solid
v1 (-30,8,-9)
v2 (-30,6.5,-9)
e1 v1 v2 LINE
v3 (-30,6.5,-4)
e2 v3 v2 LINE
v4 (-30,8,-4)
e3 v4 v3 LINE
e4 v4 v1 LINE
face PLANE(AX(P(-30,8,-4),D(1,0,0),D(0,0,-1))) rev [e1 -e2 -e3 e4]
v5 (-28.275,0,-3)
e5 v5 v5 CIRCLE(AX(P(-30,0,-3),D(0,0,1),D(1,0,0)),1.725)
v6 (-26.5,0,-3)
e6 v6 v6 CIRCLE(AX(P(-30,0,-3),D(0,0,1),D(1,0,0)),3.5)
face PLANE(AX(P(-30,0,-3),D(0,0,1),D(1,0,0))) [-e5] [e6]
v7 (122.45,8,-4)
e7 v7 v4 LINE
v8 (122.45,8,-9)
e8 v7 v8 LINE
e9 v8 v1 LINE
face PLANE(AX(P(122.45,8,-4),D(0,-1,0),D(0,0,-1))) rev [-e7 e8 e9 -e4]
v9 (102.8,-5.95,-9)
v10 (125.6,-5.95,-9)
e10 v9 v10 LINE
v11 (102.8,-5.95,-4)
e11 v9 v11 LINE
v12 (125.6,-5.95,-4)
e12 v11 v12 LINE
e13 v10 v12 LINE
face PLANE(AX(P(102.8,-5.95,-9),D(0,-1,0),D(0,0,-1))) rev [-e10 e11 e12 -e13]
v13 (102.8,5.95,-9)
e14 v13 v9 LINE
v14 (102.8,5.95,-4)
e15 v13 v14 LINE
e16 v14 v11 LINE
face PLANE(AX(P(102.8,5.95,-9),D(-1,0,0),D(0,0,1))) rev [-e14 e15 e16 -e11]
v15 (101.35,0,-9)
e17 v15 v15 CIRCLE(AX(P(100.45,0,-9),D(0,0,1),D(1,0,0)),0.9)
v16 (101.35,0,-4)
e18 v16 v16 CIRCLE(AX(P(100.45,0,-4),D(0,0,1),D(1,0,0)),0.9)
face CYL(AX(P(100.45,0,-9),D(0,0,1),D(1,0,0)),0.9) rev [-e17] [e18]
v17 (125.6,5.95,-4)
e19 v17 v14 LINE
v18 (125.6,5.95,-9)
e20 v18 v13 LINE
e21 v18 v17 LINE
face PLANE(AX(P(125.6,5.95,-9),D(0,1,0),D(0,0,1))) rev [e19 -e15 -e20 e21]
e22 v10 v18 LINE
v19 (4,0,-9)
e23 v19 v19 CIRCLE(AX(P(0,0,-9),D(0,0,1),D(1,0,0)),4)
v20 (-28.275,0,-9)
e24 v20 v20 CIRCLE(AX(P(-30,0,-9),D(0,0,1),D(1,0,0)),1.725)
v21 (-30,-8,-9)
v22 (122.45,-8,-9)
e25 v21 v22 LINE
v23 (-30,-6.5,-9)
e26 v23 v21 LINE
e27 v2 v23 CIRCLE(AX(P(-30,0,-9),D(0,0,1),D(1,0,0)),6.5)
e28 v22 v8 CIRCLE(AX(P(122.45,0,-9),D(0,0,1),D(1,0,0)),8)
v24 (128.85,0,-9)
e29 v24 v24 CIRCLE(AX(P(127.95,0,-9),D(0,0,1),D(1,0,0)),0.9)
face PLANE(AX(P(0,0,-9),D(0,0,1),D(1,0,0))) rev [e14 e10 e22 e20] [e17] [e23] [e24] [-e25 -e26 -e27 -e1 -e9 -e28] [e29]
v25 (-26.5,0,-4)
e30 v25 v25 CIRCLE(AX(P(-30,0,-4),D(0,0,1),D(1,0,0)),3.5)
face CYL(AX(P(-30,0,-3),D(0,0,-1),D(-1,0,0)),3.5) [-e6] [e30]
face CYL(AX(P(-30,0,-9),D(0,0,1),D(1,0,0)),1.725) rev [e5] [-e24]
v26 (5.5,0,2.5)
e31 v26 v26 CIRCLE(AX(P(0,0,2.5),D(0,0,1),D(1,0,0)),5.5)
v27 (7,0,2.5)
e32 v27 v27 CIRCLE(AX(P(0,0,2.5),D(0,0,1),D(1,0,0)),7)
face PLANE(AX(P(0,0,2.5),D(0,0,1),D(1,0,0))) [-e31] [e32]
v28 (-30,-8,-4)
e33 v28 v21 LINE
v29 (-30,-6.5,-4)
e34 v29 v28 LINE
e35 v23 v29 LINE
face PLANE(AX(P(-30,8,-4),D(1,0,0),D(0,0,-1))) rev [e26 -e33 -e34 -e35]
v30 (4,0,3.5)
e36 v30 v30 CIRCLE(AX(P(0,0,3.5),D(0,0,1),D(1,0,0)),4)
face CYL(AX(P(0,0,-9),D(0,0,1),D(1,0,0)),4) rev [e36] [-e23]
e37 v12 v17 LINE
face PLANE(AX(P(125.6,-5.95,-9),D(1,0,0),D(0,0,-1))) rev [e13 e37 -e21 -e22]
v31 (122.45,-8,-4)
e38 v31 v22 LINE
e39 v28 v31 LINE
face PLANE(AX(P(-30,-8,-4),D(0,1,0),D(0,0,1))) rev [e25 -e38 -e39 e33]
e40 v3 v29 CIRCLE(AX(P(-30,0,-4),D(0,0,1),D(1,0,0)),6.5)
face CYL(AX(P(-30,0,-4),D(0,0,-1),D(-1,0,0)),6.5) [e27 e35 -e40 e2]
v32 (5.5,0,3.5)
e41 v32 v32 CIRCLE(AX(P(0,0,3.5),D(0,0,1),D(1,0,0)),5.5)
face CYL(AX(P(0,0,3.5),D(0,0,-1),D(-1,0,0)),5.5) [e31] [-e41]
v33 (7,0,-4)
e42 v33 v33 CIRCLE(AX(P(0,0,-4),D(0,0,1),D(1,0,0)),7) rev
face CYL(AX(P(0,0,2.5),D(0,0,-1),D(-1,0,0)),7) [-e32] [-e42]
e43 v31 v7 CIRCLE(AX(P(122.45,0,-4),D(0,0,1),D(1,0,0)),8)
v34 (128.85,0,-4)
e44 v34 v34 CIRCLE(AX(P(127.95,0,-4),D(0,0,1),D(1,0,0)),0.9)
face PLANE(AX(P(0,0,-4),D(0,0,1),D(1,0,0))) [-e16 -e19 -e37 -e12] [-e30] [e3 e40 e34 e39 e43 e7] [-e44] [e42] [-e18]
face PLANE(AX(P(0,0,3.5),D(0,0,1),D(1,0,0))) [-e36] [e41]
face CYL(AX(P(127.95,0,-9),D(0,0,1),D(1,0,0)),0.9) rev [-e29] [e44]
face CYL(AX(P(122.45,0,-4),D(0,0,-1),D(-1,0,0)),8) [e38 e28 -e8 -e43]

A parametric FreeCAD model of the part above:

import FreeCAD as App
import Part
import Sketcher
from FreeCAD import Vector

doc = App.newDocument("Part")
body = doc.addObject("PartDesign::Body", "Body")

sketch1 = body.newObject("Sketcher::SketchObject", "Sketch")
sketch1.AttachmentSupport = (doc.getObject("XY_Plane"), [""])
sketch1.MapMode = "FlatFace"
sketch1.AttachmentOffset = App.Placement(Vector(0, 0, -9), App.Rotation())
sketch1.addGeometry([
    Part.LineSegment(Vector(-30, 8, 0), Vector(-30, -8, 0)),
    Part.LineSegment(Vector(-30, -8, 0), Vector(122.45, -8, 0)),
    Part.LineSegment(Vector(122.45, -8, 0), Vector(122.45, 8, 0)),
    Part.LineSegment(Vector(122.45, 8, 0), Vector(-30, 8, 0)),
], False)
sketch1.addConstraint([
    Sketcher.Constraint("Coincident", 0, 2, 1, 1),
    Sketcher.Constraint("Coincident", 1, 2, 2, 1),
    Sketcher.Constraint("Coincident", 2, 2, 3, 1),
    Sketcher.Constraint("Coincident", 3, 2, 0, 1),
    Sketcher.Constraint("Vertical", 0),
    Sketcher.Constraint("Horizontal", 1),
    Sketcher.Constraint("Vertical", 2),
    Sketcher.Constraint("Horizontal", 3),
    Sketcher.Constraint("DistanceY", 0, 2, 0, 1, 16.0),
    Sketcher.Constraint("DistanceX", 0, 2, -1, 1, 30.0),
    Sketcher.Constraint("DistanceY", 0, 2, -1, 1, 8.0),
    Sketcher.Constraint("DistanceX", 1, 1, 1, 2, 152.45),
])
pad1 = body.newObject("PartDesign::Pad", "Pad")
pad1.Profile = sketch1
pad1.Length = 5

sketch2 = body.newObject("Sketcher::SketchObject", "Sketch001")
sketch2.AttachmentSupport = (doc.getObject("XY_Plane"), [""])
sketch2.MapMode = "FlatFace"
sketch2.AttachmentOffset = App.Placement(Vector(0, 0, -9), App.Rotation())
sketch2.addGeometry(Part.Circle(Vector(-30, 0, 0), Vector(0, 0, 1), 6.5), False)
sketch2.addConstraint([
    Sketcher.Constraint("PointOnObject", 0, 3, -1),
    Sketcher.Constraint("Diameter", 0, 13.0),
    Sketcher.Constraint("DistanceX", 0, 3, -1, 1, 30.0),
])
pad2 = body.newObject("PartDesign::Pad", "Pad001")
pad2.Profile = sketch2
pad2.Length = 5

sketch3 = body.newObject("Sketcher::SketchObject", "Sketch002")
sketch3.AttachmentSupport = (doc.getObject("XY_Plane"), [""])
sketch3.MapMode = "FlatFace"
sketch3.AttachmentOffset = App.Placement(Vector(0, 0, -9), App.Rotation())
sketch3.addGeometry(Part.Circle(Vector(122.45, 0, 0), Vector(0, 0, 1), 8), False)
sketch3.addConstraint([
    Sketcher.Constraint("PointOnObject", 0, 3, -1),
    Sketcher.Constraint("Diameter", 0, 16.0),
    Sketcher.Constraint("DistanceX", -1, 1, 0, 3, 122.45),
])
pad3 = body.newObject("PartDesign::Pad", "Pad002")
pad3.Profile = sketch3
pad3.Length = 5

sketch4 = body.newObject("Sketcher::SketchObject", "Sketch003")
sketch4.AttachmentSupport = (doc.getObject("XY_Plane"), [""])
sketch4.MapMode = "FlatFace"
sketch4.AttachmentOffset = App.Placement(Vector(0, 0, -9), App.Rotation())
sketch4.addGeometry(Part.Circle(Vector(0, 0, 0), Vector(0, 0, 1), 7), False)
sketch4.addConstraint([
    Sketcher.Constraint("Coincident", 0, 3, -1, 1),
    Sketcher.Constraint("Diameter", 0, 14.0),
])
pad4 = body.newObject("PartDesign::Pad", "Pad003")
pad4.Profile = sketch4
pad4.Length = 11.5

sketch5 = body.newObject("Sketcher::SketchObject", "Sketch004")
sketch5.AttachmentSupport = (doc.getObject("XY_Plane"), [""])
sketch5.MapMode = "FlatFace"
sketch5.AttachmentOffset = App.Placement(Vector(0, 0, 2.5), App.Rotation())
sketch5.addGeometry(Part.Circle(Vector(0, 0, 0), Vector(0, 0, 1), 5.5), False)
sketch5.addConstraint([
    Sketcher.Constraint("Coincident", 0, 3, -1, 1),
    Sketcher.Constraint("Diameter", 0, 11.0),
])
pad5 = body.newObject("PartDesign::Pad", "Pad004")
pad5.Profile = sketch5
pad5.Length = 1

sketch6 = body.newObject("Sketcher::SketchObject", "Sketch005")
sketch6.AttachmentSupport = (doc.getObject("XY_Plane"), [""])
sketch6.MapMode = "FlatFace"
sketch6.AttachmentOffset = App.Placement(Vector(0, 0, -4), App.Rotation())
sketch6.addGeometry(Part.Circle(Vector(-30, 0, 0), Vector(0, 0, 1), 3.5), False)
sketch6.addConstraint([
    Sketcher.Constraint("PointOnObject", 0, 3, -1),
    Sketcher.Constraint("Diameter", 0, 7.0),
    Sketcher.Constraint("DistanceX", 0, 3, -1, 1, 30.0),
])
pad6 = body.newObject("PartDesign::Pad", "Pad005")
pad6.Profile = sketch6
pad6.Length = 1

sketch7 = body.newObject("Sketcher::SketchObject", "Sketch006")
sketch7.AttachmentSupport = (doc.getObject("XY_Plane"), [""])
sketch7.MapMode = "FlatFace"
sketch7.addGeometry(Part.Circle(Vector(0, 0, 0), Vector(0, 0, 1), 4), False)
sketch7.addConstraint([
    Sketcher.Constraint("Coincident", 0, 3, -1, 1),
    Sketcher.Constraint("Diameter", 0, 8.0),
])
pocket1 = body.newObject("PartDesign::Pocket", "Pocket")
pocket1.Profile = sketch7
pocket1.Type = "ThroughAll"
pocket1.Midplane = True

sketch8 = body.newObject("Sketcher::SketchObject", "Sketch007")
sketch8.AttachmentSupport = (doc.getObject("XY_Plane"), [""])
sketch8.MapMode = "FlatFace"
sketch8.addGeometry(Part.Circle(Vector(-30, 0, 0), Vector(0, 0, 1), 1.725), False)
sketch8.addConstraint([
    Sketcher.Constraint("PointOnObject", 0, 3, -1),
    Sketcher.Constraint("Diameter", 0, 3.45),
    Sketcher.Constraint("DistanceX", 0, 3, -1, 1, 30.0),
])
pocket2 = body.newObject("PartDesign::Pocket", "Pocket001")
pocket2.Profile = sketch8
pocket2.Type = "ThroughAll"
pocket2.Midplane = True

sketch9 = body.newObject("Sketcher::SketchObject", "Sketch008")
sketch9.AttachmentSupport = (doc.getObject("XY_Plane"), [""])
sketch9.MapMode = "FlatFace"
sketch9.addGeometry([
    Part.LineSegment(Vector(102.8, 5.95, 0), Vector(102.8, -5.95, 0)),
    Part.LineSegment(Vector(102.8, -5.95, 0), Vector(125.6, -5.95, 0)),
    Part.LineSegment(Vector(125.6, -5.95, 0), Vector(125.6, 5.95, 0)),
    Part.LineSegment(Vector(125.6, 5.95, 0), Vector(102.8, 5.95, 0)),
], False)
sketch9.addConstraint([
    Sketcher.Constraint("Coincident", 0, 2, 1, 1),
    Sketcher.Constraint("Coincident", 1, 2, 2, 1),
    Sketcher.Constraint("Coincident", 2, 2, 3, 1),
    Sketcher.Constraint("Coincident", 3, 2, 0, 1),
    Sketcher.Constraint("Vertical", 0),
    Sketcher.Constraint("Horizontal", 1),
    Sketcher.Constraint("Vertical", 2),
    Sketcher.Constraint("Horizontal", 3),
    Sketcher.Constraint("DistanceX", 1, 1, 1, 2, 22.8),
    Sketcher.Constraint("DistanceY", 0, 2, 0, 1, 11.9),
    Sketcher.Constraint("DistanceX", -1, 1, 0, 2, 102.8),
    Sketcher.Constraint("DistanceY", 0, 2, -1, 1, 5.95),
])
pocket3 = body.newObject("PartDesign::Pocket", "Pocket002")
pocket3.Profile = sketch9
pocket3.Type = "ThroughAll"
pocket3.Midplane = True

sketch10 = body.newObject("Sketcher::SketchObject", "Sketch009")
sketch10.AttachmentSupport = (doc.getObject("XY_Plane"), [""])
sketch10.MapMode = "FlatFace"
sketch10.addGeometry([
    Part.Circle(Vector(100.45, 0, 0), Vector(0, 0, 1), 0.9),
    Part.Circle(Vector(127.95, 0, 0), Vector(0, 0, 1), 0.9),
], False)
sketch10.addConstraint([
    Sketcher.Constraint("Equal", 0, 1),
    Sketcher.Constraint("PointOnObject", 0, 3, -1),
    Sketcher.Constraint("PointOnObject", 1, 3, -1),
    Sketcher.Constraint("Diameter", 0, 1.8),
    Sketcher.Constraint("DistanceX", 0, 3, 1, 3, 27.5),
    Sketcher.Constraint("DistanceX", -1, 1, 0, 3, 100.45),
])
pocket4 = body.newObject("PartDesign::Pocket", "Pocket003")
pocket4.Profile = sketch10
pocket4.Type = "ThroughAll"
pocket4.Midplane = True

doc.recompute()
